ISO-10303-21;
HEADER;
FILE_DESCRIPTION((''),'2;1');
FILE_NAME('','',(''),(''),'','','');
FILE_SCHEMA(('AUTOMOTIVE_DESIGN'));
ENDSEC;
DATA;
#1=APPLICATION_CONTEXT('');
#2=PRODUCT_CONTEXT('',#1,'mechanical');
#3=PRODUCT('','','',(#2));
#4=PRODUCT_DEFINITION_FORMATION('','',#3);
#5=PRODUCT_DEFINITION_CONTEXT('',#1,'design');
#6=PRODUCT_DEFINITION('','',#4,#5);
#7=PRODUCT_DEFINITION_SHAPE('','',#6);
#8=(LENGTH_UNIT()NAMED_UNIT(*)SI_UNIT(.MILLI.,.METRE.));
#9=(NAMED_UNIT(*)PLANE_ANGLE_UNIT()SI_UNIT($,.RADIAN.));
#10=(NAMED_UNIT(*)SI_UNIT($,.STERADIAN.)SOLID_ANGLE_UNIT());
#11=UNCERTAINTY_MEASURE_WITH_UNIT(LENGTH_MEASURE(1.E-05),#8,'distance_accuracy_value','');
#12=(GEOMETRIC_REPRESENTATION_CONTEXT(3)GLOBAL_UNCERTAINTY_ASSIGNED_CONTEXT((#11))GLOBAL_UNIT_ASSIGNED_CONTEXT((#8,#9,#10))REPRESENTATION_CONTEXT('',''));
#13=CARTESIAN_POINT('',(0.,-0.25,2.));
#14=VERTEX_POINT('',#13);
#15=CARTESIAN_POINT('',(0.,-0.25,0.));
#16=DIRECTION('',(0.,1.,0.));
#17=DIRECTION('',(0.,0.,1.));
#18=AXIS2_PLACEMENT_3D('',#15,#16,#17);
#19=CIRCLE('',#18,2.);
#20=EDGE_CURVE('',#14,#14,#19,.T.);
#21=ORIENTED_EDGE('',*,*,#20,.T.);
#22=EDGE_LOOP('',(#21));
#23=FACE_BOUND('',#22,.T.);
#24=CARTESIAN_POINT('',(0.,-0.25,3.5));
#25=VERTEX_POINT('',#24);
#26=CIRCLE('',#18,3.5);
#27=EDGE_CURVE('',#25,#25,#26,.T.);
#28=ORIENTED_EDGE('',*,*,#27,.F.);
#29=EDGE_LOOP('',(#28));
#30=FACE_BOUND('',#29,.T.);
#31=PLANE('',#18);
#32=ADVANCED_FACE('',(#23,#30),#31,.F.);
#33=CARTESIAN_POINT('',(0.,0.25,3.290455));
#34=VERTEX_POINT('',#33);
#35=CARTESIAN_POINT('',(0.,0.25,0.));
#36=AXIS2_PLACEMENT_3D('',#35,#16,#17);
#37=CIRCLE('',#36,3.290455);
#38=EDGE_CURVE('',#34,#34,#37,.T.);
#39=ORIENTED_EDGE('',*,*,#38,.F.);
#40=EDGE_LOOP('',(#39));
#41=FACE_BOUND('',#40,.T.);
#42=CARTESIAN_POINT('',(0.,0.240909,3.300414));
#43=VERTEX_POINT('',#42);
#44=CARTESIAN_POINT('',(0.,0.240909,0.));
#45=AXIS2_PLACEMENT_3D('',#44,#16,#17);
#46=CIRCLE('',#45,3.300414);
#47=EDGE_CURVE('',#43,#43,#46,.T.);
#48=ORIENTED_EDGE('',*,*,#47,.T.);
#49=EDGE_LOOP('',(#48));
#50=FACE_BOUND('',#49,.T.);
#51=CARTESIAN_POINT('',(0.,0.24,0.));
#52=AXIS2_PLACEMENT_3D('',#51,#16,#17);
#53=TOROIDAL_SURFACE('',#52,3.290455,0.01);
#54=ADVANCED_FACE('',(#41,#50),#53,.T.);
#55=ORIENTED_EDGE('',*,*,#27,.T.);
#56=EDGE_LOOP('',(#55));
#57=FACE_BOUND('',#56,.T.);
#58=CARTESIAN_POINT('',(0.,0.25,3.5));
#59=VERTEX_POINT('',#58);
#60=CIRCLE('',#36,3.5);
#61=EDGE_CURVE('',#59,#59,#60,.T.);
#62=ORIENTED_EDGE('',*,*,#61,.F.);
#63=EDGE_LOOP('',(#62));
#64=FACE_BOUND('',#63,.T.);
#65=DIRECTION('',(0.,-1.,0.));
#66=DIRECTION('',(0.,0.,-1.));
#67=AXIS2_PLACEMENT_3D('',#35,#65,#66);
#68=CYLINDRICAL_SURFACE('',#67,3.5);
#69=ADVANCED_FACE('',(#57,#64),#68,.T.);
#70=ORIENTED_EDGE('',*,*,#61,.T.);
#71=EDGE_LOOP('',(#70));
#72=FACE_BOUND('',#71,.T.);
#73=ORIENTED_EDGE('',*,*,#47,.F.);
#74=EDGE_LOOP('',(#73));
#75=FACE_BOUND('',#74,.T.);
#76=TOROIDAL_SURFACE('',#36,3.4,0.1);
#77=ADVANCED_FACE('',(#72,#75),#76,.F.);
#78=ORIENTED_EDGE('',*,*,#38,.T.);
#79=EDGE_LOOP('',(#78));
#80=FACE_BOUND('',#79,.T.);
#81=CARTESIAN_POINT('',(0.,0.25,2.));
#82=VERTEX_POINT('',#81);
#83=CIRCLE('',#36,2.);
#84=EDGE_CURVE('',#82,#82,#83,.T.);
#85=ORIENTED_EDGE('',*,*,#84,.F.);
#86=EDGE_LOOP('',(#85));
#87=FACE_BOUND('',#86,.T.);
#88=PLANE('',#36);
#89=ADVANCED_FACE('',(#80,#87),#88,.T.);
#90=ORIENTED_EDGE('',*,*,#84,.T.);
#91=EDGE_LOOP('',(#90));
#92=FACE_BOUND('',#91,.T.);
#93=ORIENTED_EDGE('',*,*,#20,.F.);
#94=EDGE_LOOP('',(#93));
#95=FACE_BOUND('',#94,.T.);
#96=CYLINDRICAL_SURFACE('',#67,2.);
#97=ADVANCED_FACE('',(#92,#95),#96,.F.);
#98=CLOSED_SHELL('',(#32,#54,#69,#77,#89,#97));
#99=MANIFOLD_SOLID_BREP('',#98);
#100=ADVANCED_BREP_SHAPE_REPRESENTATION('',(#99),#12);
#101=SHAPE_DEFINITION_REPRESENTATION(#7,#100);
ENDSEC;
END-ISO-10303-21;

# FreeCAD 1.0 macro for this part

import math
import FreeCAD as App
import Part
import Sketcher
Q = App.Units.Quantity

doc = App.newDocument("Part")
body = doc.addObject("PartDesign::Body", "Body")

sketch1 = body.newObject("Sketcher::SketchObject", "Sketch")
sketch1.AttachmentSupport = (doc.getObject("XZ_Plane"), [""])
sketch1.MapMode = "FlatFace"
sketch1.addGeometry(Part.Circle(App.Vector(0, 0, 0), App.Vector(0, 0, 1), 3.5), False)
sketch1.addGeometry(Part.Circle(App.Vector(0, 0, 0), App.Vector(0, 0, 1), 2), False)
sketch1.addConstraint(Sketcher.Constraint("Coincident", 0, 3, -1, 1))
sketch1.addConstraint(Sketcher.Constraint("Coincident", 1, 3, -1, 1))
sketch1.addConstraint(Sketcher.Constraint("Diameter", 0, Q("7 mm")))
sketch1.addConstraint(Sketcher.Constraint("Diameter", 1, Q("4 mm")))
pad1 = body.newObject("PartDesign::Pad", "Pad")
pad1.Profile = sketch1
pad1.Length = 0.5
pad1.Midplane = True

sketch2 = body.newObject("Sketcher::SketchObject", "Sketch001")
sketch2.AttachmentSupport = (doc.getObject("XY_Plane"), [""])
sketch2.MapMode = "FlatFace"
sketch2.addGeometry(Part.LineSegment(App.Vector(-3.290455, 0.25, 0), App.Vector(-3.5, 0.25, 0)), False)
sketch2.addGeometry(Part.ArcOfCircle(Part.Circle(App.Vector(-3.4, 0.25, 0), App.Vector(0, 0, 1), 0.1), math.radians(180), math.radians(354.784092)), False)
sketch2.addGeometry(Part.ArcOfCircle(Part.Circle(App.Vector(-3.290455, 0.24, 0), App.Vector(0, 0, 1), 0.01), math.radians(90), math.radians(174.784091)), False)
sketch2.addConstraint(Sketcher.Constraint("Coincident", 0, 2, 1, 1))
sketch2.addConstraint(Sketcher.Constraint("Tangent", 1, 2, 2, 2))
sketch2.addConstraint(Sketcher.Constraint("Tangent", 2, 1, 0, 1))
sketch2.addConstraint(Sketcher.Constraint("Horizontal", 0))
sketch2.addConstraint(Sketcher.Constraint("Horizontal", 1, 3, 0, 2))
sketch2.addConstraint(Sketcher.Constraint("Radius", 1, Q("0.1 mm")))
sketch2.addConstraint(Sketcher.Constraint("Radius", 2, Q("0.01 mm")))
sketch2.addConstraint(Sketcher.Constraint("DistanceX", 1, 3, -1, 1, Q("3.4 mm")))
sketch2.addConstraint(Sketcher.Constraint("DistanceY", -1, 1, 1, 3, Q("0.25 mm")))
groove = body.newObject("PartDesign::Groove", "Groove")
groove.Profile = sketch2
groove.ReferenceAxis = (sketch2, ["V_Axis"])
groove.Angle = 360

doc.recompute()
